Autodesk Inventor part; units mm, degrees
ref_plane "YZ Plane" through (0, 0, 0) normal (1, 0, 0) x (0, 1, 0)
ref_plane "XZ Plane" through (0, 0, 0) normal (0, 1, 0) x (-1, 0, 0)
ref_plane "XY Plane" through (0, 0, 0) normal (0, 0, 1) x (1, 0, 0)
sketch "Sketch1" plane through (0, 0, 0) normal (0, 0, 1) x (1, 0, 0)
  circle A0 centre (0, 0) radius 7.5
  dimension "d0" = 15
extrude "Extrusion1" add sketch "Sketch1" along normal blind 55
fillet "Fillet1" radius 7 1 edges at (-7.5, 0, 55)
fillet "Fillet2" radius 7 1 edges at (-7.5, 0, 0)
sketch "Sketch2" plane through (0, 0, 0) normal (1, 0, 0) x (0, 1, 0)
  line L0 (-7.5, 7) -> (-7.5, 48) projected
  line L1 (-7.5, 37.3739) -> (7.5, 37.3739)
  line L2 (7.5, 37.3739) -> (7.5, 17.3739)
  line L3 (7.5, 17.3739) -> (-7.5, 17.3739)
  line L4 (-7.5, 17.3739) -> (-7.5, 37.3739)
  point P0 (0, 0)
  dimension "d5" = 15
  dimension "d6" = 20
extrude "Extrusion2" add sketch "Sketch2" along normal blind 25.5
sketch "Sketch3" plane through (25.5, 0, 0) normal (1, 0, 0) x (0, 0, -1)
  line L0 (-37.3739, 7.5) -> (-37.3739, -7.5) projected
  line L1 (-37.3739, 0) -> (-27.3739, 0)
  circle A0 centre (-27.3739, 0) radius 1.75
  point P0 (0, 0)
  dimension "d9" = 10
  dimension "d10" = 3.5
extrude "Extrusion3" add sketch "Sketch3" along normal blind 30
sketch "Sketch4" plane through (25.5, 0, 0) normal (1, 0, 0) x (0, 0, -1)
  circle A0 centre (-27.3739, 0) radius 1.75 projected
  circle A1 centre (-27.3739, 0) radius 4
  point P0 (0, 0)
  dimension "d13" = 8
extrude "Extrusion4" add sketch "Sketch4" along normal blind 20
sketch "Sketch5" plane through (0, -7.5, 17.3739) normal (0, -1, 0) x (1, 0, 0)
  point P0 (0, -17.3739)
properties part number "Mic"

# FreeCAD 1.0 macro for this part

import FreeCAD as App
import Part
import Sketcher
from FreeCAD import Vector
Q = App.Units.Quantity


def edges_at(feature, points):
    """Names of the edges that pass closest to the given points."""
    edges = feature.Shape.Edges
    near = lambda p: min(range(len(edges)), key=lambda i: edges[i].distToShape(Part.Vertex(*p))[0])
    return sorted({f"Edge{near(p) + 1}" for p in points})

doc = App.newDocument("Part")
body = doc.addObject("PartDesign::Body", "Body")

# Sketch on XY plane
sketch1 = doc.addObject("Sketcher::SketchObject", "Sketch")
body.addObject(sketch1)
sketch1.AttachmentSupport = (doc.XY_Plane, [""])
sketch1.MapMode = "FlatFace"
sketch1.addGeometry(Part.Circle(Vector(0, 0, 0), Vector(0, 0, 1), 8), False)
sketch1.addConstraint(Sketcher.Constraint("Coincident", 0, 3, -1, 1))
sketch1.addConstraint(Sketcher.Constraint("Diameter", 0, Q("15 mm")))
pad1 = doc.addObject("PartDesign::Pad", "Pad")
body.addObject(pad1)
pad1.Profile = sketch1
pad1.Length = 55
doc.recompute()

fillet = doc.addObject("PartDesign::Fillet", "Fillet")
body.addObject(fillet)
fillet.Base = (pad1, edges_at(pad1, [(-7.5, 0, 55)]))
fillet.Radius = 7
doc.recompute()

fillet2 = doc.addObject("PartDesign::Fillet", "Fillet001")
body.addObject(fillet2)
fillet2.Base = (fillet, edges_at(fillet, [(-7.5, 0, 0)]))
fillet2.Radius = 7

# Sketch on YZ plane
sketch2 = doc.addObject("Sketcher::SketchObject", "Sketch001")
body.addObject(sketch2)
sketch2.AttachmentSupport = (doc.YZ_Plane, [""])
sketch2.MapMode = "FlatFace"
sketch2.addGeometry(Part.LineSegment(Vector(-8, 37, 0), Vector(-8, 17, 0)), False)
sketch2.addGeometry(Part.LineSegment(Vector(-8, 17, 0), Vector(8, 17, 0)), False)
sketch2.addGeometry(Part.LineSegment(Vector(8, 17, 0), Vector(8, 37, 0)), False)
sketch2.addGeometry(Part.LineSegment(Vector(8, 37, 0), Vector(-8, 37, 0)), False)
sketch2.addConstraint(Sketcher.Constraint("Coincident", 0, 2, 1, 1))
sketch2.addConstraint(Sketcher.Constraint("Coincident", 1, 2, 2, 1))
sketch2.addConstraint(Sketcher.Constraint("Coincident", 2, 2, 3, 1))
sketch2.addConstraint(Sketcher.Constraint("Coincident", 3, 2, 0, 1))
sketch2.addConstraint(Sketcher.Constraint("Vertical", 0))
sketch2.addConstraint(Sketcher.Constraint("Horizontal", 1))
sketch2.addConstraint(Sketcher.Constraint("Vertical", 2))
sketch2.addConstraint(Sketcher.Constraint("Horizontal", 3))
sketch2.addConstraint(Sketcher.Constraint("DistanceX", 1, 1, 1, 2, Q("15 mm")))
sketch2.addConstraint(Sketcher.Constraint("DistanceY", 0, 2, 0, 1, Q("20 mm")))
sketch2.addConstraint(Sketcher.Constraint("DistanceX", 0, 2, -1, 1, Q("7.5 mm")))
sketch2.addConstraint(Sketcher.Constraint("DistanceY", -1, 1, 0, 2, Q("17.374 mm")))
pad2 = doc.addObject("PartDesign::Pad", "Pad001")
body.addObject(pad2)
pad2.Profile = sketch2
pad2.Length = 25.5

# Sketch on YZ plane
sketch3 = doc.addObject("Sketcher::SketchObject", "Sketch002")
body.addObject(sketch3)
sketch3.AttachmentSupport = (doc.YZ_Plane, [""])
sketch3.MapMode = "FlatFace"
sketch3.AttachmentOffset = App.Placement(Vector(0, 0, 25.5), App.Rotation())
sketch3.addGeometry(Part.Circle(Vector(0, 27.4, 0), Vector(0, 0, 1), 1.8), False)
sketch3.addConstraint(Sketcher.Constraint("PointOnObject", 0, 3, -2))
sketch3.addConstraint(Sketcher.Constraint("Diameter", 0, Q("3.5 mm")))
sketch3.addConstraint(Sketcher.Constraint("DistanceY", -1, 1, 0, 3, Q("27.374 mm")))
pad3 = doc.addObject("PartDesign::Pad", "Pad002")
body.addObject(pad3)
pad3.Profile = sketch3
pad3.Length = 30

# Sketch on YZ plane
sketch4 = doc.addObject("Sketcher::SketchObject", "Sketch003")
body.addObject(sketch4)
sketch4.AttachmentSupport = (doc.YZ_Plane, [""])
sketch4.MapMode = "FlatFace"
sketch4.AttachmentOffset = App.Placement(Vector(0, 0, 25.5), App.Rotation())
sketch4.addGeometry(Part.Circle(Vector(0, 27.4, 0), Vector(0, 0, 1), 4), False)
sketch4.addGeometry(Part.Circle(Vector(0, 27.4, 0), Vector(0, 0, 1), 1.8), False)
sketch4.addConstraint(Sketcher.Constraint("Coincident", 1, 3, 0, 3))
sketch4.addConstraint(Sketcher.Constraint("PointOnObject", 0, 3, -2))
sketch4.addConstraint(Sketcher.Constraint("Diameter", 0, Q("8 mm")))
sketch4.addConstraint(Sketcher.Constraint("Diameter", 1, Q("3.5 mm")))
sketch4.addConstraint(Sketcher.Constraint("DistanceY", -1, 1, 0, 3, Q("27.374 mm")))
pad4 = doc.addObject("PartDesign::Pad", "Pad003")
body.addObject(pad4)
pad4.Profile = sketch4
pad4.Length = 20

doc.recompute()
